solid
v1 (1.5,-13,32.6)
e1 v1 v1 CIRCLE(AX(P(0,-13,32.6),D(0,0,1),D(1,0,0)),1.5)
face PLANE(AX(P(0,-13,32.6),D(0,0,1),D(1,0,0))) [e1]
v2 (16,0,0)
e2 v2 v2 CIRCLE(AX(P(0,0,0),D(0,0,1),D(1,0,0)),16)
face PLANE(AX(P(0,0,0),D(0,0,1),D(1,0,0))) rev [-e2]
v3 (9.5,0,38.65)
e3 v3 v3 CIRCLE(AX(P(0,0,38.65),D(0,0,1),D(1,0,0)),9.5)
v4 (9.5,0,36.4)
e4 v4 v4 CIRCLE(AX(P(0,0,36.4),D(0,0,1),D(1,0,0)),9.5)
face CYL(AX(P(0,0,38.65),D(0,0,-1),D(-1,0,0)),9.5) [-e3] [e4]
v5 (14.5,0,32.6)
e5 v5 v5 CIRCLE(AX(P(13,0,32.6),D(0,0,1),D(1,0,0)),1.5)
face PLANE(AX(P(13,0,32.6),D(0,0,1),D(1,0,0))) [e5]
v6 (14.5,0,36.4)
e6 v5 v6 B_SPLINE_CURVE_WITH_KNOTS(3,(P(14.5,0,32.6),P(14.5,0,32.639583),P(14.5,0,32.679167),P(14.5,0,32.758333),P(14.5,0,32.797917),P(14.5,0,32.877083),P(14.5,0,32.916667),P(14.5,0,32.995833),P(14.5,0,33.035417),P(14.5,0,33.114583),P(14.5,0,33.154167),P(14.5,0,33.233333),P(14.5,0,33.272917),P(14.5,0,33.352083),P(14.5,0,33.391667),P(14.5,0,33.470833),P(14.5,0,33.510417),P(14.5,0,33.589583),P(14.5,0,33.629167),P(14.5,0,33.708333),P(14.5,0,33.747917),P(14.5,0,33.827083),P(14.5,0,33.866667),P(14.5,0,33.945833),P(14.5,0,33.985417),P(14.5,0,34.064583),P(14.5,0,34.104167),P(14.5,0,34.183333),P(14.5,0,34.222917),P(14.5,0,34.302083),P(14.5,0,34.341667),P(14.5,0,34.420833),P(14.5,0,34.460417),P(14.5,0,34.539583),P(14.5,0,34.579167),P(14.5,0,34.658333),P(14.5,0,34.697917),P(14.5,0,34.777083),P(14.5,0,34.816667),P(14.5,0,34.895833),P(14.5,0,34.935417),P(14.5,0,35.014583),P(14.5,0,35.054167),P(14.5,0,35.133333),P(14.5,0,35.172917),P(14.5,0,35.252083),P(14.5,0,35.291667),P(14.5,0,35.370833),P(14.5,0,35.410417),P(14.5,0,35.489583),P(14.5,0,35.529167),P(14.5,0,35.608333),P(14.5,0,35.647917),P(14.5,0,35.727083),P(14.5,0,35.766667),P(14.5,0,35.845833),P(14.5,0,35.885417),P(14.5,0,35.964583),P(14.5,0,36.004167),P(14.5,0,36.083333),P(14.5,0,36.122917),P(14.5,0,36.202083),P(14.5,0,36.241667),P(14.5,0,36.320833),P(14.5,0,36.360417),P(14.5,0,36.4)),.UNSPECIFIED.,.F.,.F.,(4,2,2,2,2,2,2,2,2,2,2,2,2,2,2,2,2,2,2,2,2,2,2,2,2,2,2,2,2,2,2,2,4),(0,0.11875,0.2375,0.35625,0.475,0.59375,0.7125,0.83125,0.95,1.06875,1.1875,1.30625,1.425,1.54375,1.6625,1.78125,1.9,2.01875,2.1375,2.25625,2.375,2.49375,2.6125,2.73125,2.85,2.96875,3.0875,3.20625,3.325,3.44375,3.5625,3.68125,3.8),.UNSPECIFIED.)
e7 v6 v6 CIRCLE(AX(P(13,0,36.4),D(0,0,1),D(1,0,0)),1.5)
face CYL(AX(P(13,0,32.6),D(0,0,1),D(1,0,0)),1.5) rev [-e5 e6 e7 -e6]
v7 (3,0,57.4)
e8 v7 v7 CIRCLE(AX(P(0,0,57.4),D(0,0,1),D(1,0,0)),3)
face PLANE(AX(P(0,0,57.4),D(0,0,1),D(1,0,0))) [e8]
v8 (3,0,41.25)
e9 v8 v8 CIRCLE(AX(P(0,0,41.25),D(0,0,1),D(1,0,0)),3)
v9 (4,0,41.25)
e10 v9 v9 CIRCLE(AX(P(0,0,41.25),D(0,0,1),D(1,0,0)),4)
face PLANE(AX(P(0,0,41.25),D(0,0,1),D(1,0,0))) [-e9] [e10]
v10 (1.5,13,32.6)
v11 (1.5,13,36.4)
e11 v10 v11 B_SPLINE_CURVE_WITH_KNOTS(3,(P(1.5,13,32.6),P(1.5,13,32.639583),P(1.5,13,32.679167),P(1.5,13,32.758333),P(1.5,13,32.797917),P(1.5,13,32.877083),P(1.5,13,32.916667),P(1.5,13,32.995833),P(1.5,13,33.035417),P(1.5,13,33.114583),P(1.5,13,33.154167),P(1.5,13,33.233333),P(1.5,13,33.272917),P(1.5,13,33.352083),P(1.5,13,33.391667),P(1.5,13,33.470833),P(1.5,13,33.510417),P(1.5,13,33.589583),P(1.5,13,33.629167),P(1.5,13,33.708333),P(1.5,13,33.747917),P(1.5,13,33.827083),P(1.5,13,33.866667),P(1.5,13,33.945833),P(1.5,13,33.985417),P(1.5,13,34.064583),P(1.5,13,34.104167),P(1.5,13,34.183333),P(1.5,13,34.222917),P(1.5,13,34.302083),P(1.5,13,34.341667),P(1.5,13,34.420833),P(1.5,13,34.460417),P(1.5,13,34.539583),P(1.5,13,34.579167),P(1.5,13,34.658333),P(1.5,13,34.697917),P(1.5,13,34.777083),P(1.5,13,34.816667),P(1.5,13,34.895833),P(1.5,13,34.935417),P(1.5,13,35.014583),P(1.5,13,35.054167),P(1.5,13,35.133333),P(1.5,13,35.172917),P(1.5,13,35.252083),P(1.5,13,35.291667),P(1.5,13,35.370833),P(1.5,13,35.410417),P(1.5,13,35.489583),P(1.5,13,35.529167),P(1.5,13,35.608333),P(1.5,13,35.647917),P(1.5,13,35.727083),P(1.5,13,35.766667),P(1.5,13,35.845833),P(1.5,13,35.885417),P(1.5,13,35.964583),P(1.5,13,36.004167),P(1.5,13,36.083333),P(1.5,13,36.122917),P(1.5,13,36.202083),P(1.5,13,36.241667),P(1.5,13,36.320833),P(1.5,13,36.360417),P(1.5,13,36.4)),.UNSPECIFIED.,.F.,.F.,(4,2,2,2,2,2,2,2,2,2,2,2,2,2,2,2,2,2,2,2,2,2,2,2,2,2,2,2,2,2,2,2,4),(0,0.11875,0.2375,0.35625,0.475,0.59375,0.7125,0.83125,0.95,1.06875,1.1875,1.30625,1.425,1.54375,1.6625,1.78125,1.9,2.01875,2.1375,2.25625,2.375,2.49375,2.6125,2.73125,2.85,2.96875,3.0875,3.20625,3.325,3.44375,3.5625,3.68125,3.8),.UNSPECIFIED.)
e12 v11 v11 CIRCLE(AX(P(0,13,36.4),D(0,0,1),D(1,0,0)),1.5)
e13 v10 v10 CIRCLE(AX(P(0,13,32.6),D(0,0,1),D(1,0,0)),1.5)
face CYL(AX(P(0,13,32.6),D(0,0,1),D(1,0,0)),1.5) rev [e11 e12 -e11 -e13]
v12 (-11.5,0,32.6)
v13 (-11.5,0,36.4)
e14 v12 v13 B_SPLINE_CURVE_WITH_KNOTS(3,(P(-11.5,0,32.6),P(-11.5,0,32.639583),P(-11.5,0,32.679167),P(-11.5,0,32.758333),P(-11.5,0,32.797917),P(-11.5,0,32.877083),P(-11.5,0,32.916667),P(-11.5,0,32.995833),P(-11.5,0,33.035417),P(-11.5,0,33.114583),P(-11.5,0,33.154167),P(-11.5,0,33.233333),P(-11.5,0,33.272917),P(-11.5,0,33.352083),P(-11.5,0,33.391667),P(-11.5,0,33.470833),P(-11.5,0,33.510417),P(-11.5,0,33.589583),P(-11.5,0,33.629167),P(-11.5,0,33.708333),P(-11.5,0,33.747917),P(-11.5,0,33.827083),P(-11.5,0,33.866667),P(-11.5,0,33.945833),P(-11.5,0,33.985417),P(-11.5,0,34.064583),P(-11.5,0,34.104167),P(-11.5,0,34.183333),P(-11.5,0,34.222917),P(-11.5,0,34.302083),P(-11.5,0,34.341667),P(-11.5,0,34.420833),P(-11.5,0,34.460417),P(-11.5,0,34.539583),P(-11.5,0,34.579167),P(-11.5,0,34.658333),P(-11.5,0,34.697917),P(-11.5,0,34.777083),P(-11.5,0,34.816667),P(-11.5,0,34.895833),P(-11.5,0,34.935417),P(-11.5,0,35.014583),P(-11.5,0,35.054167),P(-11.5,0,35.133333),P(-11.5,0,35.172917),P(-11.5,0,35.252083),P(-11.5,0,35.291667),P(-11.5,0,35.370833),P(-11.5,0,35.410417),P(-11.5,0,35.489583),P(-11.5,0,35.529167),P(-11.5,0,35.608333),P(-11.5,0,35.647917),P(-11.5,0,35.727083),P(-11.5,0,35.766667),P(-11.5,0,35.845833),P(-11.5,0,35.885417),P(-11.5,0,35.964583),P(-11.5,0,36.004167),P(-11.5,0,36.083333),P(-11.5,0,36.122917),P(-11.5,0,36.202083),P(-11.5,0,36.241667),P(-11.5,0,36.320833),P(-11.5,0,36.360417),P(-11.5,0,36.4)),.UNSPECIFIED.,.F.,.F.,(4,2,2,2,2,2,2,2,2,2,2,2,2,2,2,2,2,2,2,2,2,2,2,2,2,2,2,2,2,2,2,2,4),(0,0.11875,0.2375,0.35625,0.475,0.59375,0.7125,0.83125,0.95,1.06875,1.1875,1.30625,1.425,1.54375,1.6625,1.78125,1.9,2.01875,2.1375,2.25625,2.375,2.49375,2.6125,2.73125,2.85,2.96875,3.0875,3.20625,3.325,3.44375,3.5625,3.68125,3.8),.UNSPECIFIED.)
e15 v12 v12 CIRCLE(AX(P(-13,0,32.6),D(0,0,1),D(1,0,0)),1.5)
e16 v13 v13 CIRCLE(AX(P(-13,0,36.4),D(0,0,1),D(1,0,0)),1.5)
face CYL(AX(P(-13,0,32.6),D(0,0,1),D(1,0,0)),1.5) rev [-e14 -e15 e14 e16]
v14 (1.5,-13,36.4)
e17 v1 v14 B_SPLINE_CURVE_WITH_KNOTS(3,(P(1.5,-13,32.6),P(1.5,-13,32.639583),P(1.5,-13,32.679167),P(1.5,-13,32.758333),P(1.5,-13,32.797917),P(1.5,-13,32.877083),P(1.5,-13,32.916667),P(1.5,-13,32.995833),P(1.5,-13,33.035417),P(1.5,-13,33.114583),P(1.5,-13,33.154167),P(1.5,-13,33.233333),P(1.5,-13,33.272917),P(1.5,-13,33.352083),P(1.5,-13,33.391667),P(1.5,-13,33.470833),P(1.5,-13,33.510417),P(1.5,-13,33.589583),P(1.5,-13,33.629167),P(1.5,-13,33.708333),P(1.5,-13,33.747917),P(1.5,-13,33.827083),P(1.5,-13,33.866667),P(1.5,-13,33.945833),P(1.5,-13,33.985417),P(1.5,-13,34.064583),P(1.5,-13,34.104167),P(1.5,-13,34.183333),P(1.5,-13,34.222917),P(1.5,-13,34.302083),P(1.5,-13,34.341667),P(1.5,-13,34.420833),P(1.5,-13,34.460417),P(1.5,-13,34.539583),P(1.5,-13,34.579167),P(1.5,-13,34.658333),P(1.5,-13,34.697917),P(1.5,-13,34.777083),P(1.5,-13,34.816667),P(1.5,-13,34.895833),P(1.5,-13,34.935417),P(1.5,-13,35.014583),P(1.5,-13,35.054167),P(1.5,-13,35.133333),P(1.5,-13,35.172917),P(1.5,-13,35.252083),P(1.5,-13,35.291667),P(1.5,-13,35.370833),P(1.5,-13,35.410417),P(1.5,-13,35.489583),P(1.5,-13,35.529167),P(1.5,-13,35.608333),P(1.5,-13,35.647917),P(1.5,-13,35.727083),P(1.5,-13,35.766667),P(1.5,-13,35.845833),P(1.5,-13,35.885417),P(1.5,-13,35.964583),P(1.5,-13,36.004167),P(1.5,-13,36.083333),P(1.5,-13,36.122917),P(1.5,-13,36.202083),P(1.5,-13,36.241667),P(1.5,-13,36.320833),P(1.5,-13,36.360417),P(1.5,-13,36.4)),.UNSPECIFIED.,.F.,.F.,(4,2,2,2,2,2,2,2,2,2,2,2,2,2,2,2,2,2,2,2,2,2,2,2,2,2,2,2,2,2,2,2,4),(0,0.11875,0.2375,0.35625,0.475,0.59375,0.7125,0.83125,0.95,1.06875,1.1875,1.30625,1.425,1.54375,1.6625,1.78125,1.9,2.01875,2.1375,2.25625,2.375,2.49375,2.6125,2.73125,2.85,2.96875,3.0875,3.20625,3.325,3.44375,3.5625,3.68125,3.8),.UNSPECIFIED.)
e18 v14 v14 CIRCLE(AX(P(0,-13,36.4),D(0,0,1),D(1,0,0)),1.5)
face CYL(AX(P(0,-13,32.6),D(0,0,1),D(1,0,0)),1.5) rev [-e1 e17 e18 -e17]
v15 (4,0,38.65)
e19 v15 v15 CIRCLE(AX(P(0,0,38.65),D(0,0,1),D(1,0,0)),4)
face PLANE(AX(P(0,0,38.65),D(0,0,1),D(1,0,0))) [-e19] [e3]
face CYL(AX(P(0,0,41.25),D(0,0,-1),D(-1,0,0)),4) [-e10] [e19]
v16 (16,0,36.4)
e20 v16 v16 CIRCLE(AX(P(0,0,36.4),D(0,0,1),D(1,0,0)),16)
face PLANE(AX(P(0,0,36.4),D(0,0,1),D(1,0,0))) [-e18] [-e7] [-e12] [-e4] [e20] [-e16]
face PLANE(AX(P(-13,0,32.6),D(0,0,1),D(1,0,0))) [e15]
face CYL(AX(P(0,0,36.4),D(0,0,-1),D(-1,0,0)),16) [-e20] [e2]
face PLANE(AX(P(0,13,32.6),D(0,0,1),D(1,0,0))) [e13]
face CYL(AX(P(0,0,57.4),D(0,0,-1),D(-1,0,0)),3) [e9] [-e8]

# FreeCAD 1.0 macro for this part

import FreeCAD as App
import Part
import Sketcher
from FreeCAD import Vector

doc = App.newDocument("Part")
body = doc.addObject("PartDesign::Body", "Body")

# Sketch on XY plane
sketch1 = doc.addObject("Sketcher::SketchObject", "Sketch")
body.addObject(sketch1)
sketch1.AttachmentSupport = (doc.XY_Plane, [""])
sketch1.MapMode = "FlatFace"
sketch1.addGeometry(Part.Circle(Vector(0, 0, 0), Vector(0, 0, 1), 16), False)
sketch1.addConstraint(Sketcher.Constraint("Coincident", 0, 3, -1, 1))
sketch1.addConstraint(Sketcher.Constraint("Diameter", 0, 32.0))
pad1 = doc.addObject("PartDesign::Pad", "Pad")
body.addObject(pad1)
pad1.Profile = sketch1
pad1.Length = 36.4

# Sketch on XY plane
sketch2 = doc.addObject("Sketcher::SketchObject", "Sketch001")
body.addObject(sketch2)
sketch2.AttachmentSupport = (doc.XY_Plane, [""])
sketch2.MapMode = "FlatFace"
sketch2.AttachmentOffset = App.Placement(Vector(0, 0, 36.4), App.Rotation())
sketch2.addGeometry(Part.Circle(Vector(0, 0, 0), Vector(0, 0, 1), 9.5), False)
sketch2.addConstraint(Sketcher.Constraint("Coincident", 0, 3, -1, 1))
sketch2.addConstraint(Sketcher.Constraint("Diameter", 0, 19.0))
pad2 = doc.addObject("PartDesign::Pad", "Pad001")
body.addObject(pad2)
pad2.Profile = sketch2
pad2.Length = 2.25

# Sketch on XY plane
sketch3 = doc.addObject("Sketcher::SketchObject", "Sketch002")
body.addObject(sketch3)
sketch3.AttachmentSupport = (doc.XY_Plane, [""])
sketch3.MapMode = "FlatFace"
sketch3.AttachmentOffset = App.Placement(Vector(0, 0, 38.65), App.Rotation())
sketch3.addGeometry(Part.Circle(Vector(0, 0, 0), Vector(0, 0, 1), 4), False)
sketch3.addConstraint(Sketcher.Constraint("Coincident", 0, 3, -1, 1))
sketch3.addConstraint(Sketcher.Constraint("Diameter", 0, 8.0))
pad3 = doc.addObject("PartDesign::Pad", "Pad002")
body.addObject(pad3)
pad3.Profile = sketch3
pad3.Length = 2.6

# Sketch on XY plane
sketch4 = doc.addObject("Sketcher::SketchObject", "Sketch003")
body.addObject(sketch4)
sketch4.AttachmentSupport = (doc.XY_Plane, [""])
sketch4.MapMode = "FlatFace"
sketch4.AttachmentOffset = App.Placement(Vector(0, 0, 41.25), App.Rotation())
sketch4.addGeometry(Part.Circle(Vector(0, 0, 0), Vector(0, 0, 1), 3), False)
sketch4.addConstraint(Sketcher.Constraint("Coincident", 0, 3, -1, 1))
sketch4.addConstraint(Sketcher.Constraint("Diameter", 0, 6.0))
pad4 = doc.addObject("PartDesign::Pad", "Pad003")
body.addObject(pad4)
pad4.Profile = sketch4
pad4.Length = 16.15

# Sketch on XY plane
sketch5 = doc.addObject("Sketcher::SketchObject", "Sketch004")
body.addObject(sketch5)
sketch5.AttachmentSupport = (doc.XY_Plane, [""])
sketch5.MapMode = "FlatFace"
sketch5.AttachmentOffset = App.Placement(Vector(0, 0, 36.4), App.Rotation())
sketch5.addGeometry(Part.Circle(Vector(0, 13, 0), Vector(0, 0, 1), 1.5), False)
sketch5.addGeometry(Part.Circle(Vector(13, 0, 0), Vector(0, 0, 1), 1.5), False)
sketch5.addGeometry(Part.Circle(Vector(0, -13, 0), Vector(0, 0, 1), 1.5), False)
sketch5.addGeometry(Part.Circle(Vector(-13, 0, 0), Vector(0, 0, 1), 1.5), False)
sketch5.addConstraint(Sketcher.Constraint("Equal", 0, 1))
sketch5.addConstraint(Sketcher.Constraint("Equal", 1, 2))
sketch5.addConstraint(Sketcher.Constraint("Equal", 2, 3))
sketch5.addConstraint(Sketcher.Constraint("Symmetric", 0, 3, 2, 3, -1, 1))
sketch5.addConstraint(Sketcher.Constraint("Symmetric", 1, 3, 3, 3, -1, 1))
sketch5.addConstraint(Sketcher.Constraint("PointOnObject", 0, 3, -2))
sketch5.addConstraint(Sketcher.Constraint("PointOnObject", 1, 3, -1))
sketch5.addConstraint(Sketcher.Constraint("Diameter", 0, 3.0))
sketch5.addConstraint(Sketcher.Constraint("DistanceY", -1, 1, 0, 3, 13.0))
sketch5.addConstraint(Sketcher.Constraint("DistanceX", -1, 1, 1, 3, 13.0))
pocket1 = doc.addObject("PartDesign::Pocket", "Pocket")
body.addObject(pocket1)
pocket1.Profile = sketch5
pocket1.Length = 3.8

doc.recompute()
